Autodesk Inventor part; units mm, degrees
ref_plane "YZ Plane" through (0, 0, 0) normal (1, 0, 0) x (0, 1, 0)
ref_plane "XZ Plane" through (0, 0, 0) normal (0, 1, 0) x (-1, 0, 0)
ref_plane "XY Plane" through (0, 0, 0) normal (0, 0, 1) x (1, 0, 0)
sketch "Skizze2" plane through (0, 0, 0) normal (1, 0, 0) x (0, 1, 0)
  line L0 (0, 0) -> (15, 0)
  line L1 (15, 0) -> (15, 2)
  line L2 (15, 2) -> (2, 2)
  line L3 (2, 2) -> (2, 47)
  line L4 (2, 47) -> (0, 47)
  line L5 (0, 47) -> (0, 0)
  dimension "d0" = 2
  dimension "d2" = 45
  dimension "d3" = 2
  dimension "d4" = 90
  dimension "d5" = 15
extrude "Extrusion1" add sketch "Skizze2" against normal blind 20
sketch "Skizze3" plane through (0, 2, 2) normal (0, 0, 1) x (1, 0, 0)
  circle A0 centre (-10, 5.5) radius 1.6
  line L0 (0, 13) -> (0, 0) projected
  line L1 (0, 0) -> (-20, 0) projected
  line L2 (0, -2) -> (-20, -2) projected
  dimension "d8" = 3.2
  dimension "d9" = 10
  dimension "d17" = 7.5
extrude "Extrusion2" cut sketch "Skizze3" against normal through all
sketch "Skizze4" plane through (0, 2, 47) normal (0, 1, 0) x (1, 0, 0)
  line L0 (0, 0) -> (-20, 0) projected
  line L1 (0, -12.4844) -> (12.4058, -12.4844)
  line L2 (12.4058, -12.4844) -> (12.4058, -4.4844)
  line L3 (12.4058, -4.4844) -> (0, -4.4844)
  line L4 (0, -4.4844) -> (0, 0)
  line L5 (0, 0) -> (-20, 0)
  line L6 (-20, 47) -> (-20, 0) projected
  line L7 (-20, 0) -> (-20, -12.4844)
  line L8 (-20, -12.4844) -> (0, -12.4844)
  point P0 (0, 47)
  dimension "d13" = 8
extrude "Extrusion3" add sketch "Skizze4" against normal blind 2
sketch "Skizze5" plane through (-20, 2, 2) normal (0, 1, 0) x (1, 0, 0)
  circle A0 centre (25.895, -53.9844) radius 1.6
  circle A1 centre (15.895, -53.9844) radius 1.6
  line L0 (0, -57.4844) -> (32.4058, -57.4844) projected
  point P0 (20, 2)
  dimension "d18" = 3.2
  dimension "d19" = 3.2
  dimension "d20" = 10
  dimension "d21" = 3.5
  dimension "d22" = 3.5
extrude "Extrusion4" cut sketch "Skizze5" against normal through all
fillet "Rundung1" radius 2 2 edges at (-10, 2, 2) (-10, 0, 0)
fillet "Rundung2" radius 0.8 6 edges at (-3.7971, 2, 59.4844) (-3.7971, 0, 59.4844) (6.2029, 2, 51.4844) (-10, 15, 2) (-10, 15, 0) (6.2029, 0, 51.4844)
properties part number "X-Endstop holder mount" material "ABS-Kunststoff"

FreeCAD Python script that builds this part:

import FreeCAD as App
import Part
import Sketcher
from FreeCAD import Vector


def edges_at(feature, points):
    """Names of the edges that pass closest to the given points."""
    edges = feature.Shape.Edges
    near = lambda p: min(range(len(edges)), key=lambda i: edges[i].distToShape(Part.Vertex(*p))[0])
    return sorted({f"Edge{near(p) + 1}" for p in points})

doc = App.newDocument("Part")
body = doc.addObject("PartDesign::Body", "Body")

sketch1 = doc.addObject("Sketcher::SketchObject", "Sketch")
body.addObject(sketch1)
sketch1.AttachmentSupport = (doc.YZ_Plane, [""])
sketch1.MapMode = "FlatFace"
sketch1.addGeometry([
    Part.LineSegment(Vector(0, 47, 0), Vector(0, 0, 0)),
    Part.LineSegment(Vector(0, 0, 0), Vector(15, 0, 0)),
    Part.LineSegment(Vector(15, 0, 0), Vector(15, 2, 0)),
    Part.LineSegment(Vector(15, 2, 0), Vector(2, 2, 0)),
    Part.LineSegment(Vector(2, 2, 0), Vector(2, 47, 0)),
    Part.LineSegment(Vector(2, 47, 0), Vector(0, 47, 0)),
], False)
sketch1.addConstraint([
    Sketcher.Constraint("Coincident", 0, 2, 1, 1),
    Sketcher.Constraint("Coincident", 1, 2, 2, 1),
    Sketcher.Constraint("Coincident", 2, 2, 3, 1),
    Sketcher.Constraint("Coincident", 3, 2, 4, 1),
    Sketcher.Constraint("Coincident", 4, 2, 5, 1),
    Sketcher.Constraint("Coincident", 5, 2, 0, 1),
    Sketcher.Constraint("Vertical", 0),
    Sketcher.Constraint("Horizontal", 1),
    Sketcher.Constraint("Vertical", 2),
    Sketcher.Constraint("Horizontal", 3),
    Sketcher.Constraint("Vertical", 4),
    Sketcher.Constraint("Horizontal", 5),
    Sketcher.Constraint("Coincident", 0, 2, -1, 1),
    Sketcher.Constraint("Equal", 5, 2),
    Sketcher.Constraint("DistanceX", 1, 1, 1, 2, 15.0),
    Sketcher.Constraint("DistanceX", 5, 2, 5, 1, 2.0),
    Sketcher.Constraint("DistanceY", 4, 1, 4, 2, 45.0),
])
pad1 = doc.addObject("PartDesign::Pad", "Pad")
body.addObject(pad1)
pad1.Profile = sketch1
pad1.Length = 20
pad1.Reversed = True

sketch2 = doc.addObject("Sketcher::SketchObject", "Sketch001")
body.addObject(sketch2)
sketch2.AttachmentSupport = (doc.XY_Plane, [""])
sketch2.MapMode = "FlatFace"
sketch2.AttachmentOffset = App.Placement(Vector(0, 0, 2), App.Rotation())
sketch2.addGeometry(Part.Circle(Vector(-10, 7.5, 0), Vector(0, 0, 1), 1.6), False)
sketch2.addConstraint([
    Sketcher.Constraint("Diameter", 0, 3.2),
    Sketcher.Constraint("DistanceX", 0, 3, -1, 1, 10.0),
    Sketcher.Constraint("DistanceY", -1, 1, 0, 3, 7.5),
])
pocket1 = doc.addObject("PartDesign::Pocket", "Pocket")
body.addObject(pocket1)
pocket1.Profile = sketch2
pocket1.Type = "ThroughAll"

sketch3 = doc.addObject("Sketcher::SketchObject", "Sketch002")
body.addObject(sketch3)
sketch3.AttachmentSupport = (doc.XZ_Plane, [""])
sketch3.MapMode = "FlatFace"
sketch3.AttachmentOffset = App.Placement(Vector(0, 0, -2), App.Rotation())
sketch3.addGeometry([
    Part.LineSegment(Vector(0, 51.5, 0), Vector(0, 47, 0)),
    Part.LineSegment(Vector(0, 47, 0), Vector(-20, 47, 0)),
    Part.LineSegment(Vector(-20, 47, 0), Vector(-20, 59.5, 0)),
    Part.LineSegment(Vector(-20, 59.5, 0), Vector(12.4, 59.5, 0)),
    Part.LineSegment(Vector(12.4, 59.5, 0), Vector(12.4, 51.5, 0)),
    Part.LineSegment(Vector(12.4, 51.5, 0), Vector(0, 51.5, 0)),
], False)
sketch3.addConstraint([
    Sketcher.Constraint("Coincident", 0, 2, 1, 1),
    Sketcher.Constraint("Coincident", 1, 2, 2, 1),
    Sketcher.Constraint("Coincident", 2, 2, 3, 1),
    Sketcher.Constraint("Coincident", 3, 2, 4, 1),
    Sketcher.Constraint("Coincident", 4, 2, 5, 1),
    Sketcher.Constraint("Coincident", 5, 2, 0, 1),
    Sketcher.Constraint("Vertical", 0),
    Sketcher.Constraint("Horizontal", 1),
    Sketcher.Constraint("Vertical", 2),
    Sketcher.Constraint("Horizontal", 3),
    Sketcher.Constraint("Vertical", 4),
    Sketcher.Constraint("Horizontal", 5),
    Sketcher.Constraint("PointOnObject", 0, 2, -2),
    Sketcher.Constraint("DistanceY", 4, 2, 4, 1, 8.0),
    Sketcher.Constraint("DistanceX", 1, 2, 1, 1, 20.0),
    Sketcher.Constraint("DistanceY", -1, 1, 0, 2, 47.0),
    Sketcher.Constraint("DistanceX", 3, 1, 3, 2, 32.4058),
    Sketcher.Constraint("DistanceY", 0, 2, 0, 1, 4.4844),
])
pad2 = doc.addObject("PartDesign::Pad", "Pad001")
body.addObject(pad2)
pad2.Profile = sketch3
pad2.Length = 2

sketch4 = doc.addObject("Sketcher::SketchObject", "Sketch003")
body.addObject(sketch4)
sketch4.AttachmentSupport = (doc.XZ_Plane, [""])
sketch4.MapMode = "FlatFace"
sketch4.AttachmentOffset = App.Placement(Vector(0, 0, -2), App.Rotation())
sketch4.addGeometry([
    Part.Circle(Vector(5.9, 56, 0), Vector(0, 0, 1), 1.6),
    Part.Circle(Vector(-4.1, 56, 0), Vector(0, 0, 1), 1.6),
], False)
sketch4.addConstraint([
    Sketcher.Constraint("Equal", 0, 1),
    Sketcher.Constraint("Horizontal", 0, 3, 1, 3),
    Sketcher.Constraint("Diameter", 0, 3.2),
    Sketcher.Constraint("DistanceX", 1, 3, 0, 3, 10.0),
    Sketcher.Constraint("DistanceX", -1, 1, 0, 3, 5.895),
    Sketcher.Constraint("DistanceY", -1, 1, 0, 3, 55.9844),
])
pocket2 = doc.addObject("PartDesign::Pocket", "Pocket001")
body.addObject(pocket2)
pocket2.Profile = sketch4
pocket2.Type = "ThroughAll"
pocket2.Reversed = True
doc.recompute()

fillet = doc.addObject("PartDesign::Fillet", "Fillet")
body.addObject(fillet)
fillet.Base = (pocket2, edges_at(pocket2, [(-10, 2, 2), (-10, 0, 0)]))
fillet.Radius = 2
doc.recompute()

fillet2 = doc.addObject("PartDesign::Fillet", "Fillet001")
body.addObject(fillet2)
fillet2.Base = (fillet, edges_at(fillet, [
    (-3.797, 2, 59.484),
    (-3.797, 0, 59.484),
    (6.203, 2, 51.484),
    (-10, 15, 2),
    (-10, 15, 0),
    (6.203, 0, 51.484),
]))
fillet2.Radius = 0.8

doc.recompute()
